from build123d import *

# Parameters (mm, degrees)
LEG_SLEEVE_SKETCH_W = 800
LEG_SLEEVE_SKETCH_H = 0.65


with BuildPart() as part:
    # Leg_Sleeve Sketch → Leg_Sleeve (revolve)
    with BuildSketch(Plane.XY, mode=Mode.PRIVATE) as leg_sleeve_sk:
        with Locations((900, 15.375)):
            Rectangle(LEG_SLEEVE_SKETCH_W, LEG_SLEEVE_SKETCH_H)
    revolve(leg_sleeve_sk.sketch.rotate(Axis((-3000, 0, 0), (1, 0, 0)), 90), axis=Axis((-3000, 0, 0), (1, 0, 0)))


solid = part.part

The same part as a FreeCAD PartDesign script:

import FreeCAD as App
import Part
import Sketcher


def add_polygon(sketch, points):
    """Adds a closed chain of lines whose ends are joined by coincident constraints."""
    first, n = sketch.GeometryCount, len(points)
    for a, b in zip(points, points[1:] + points[:1]):
        sketch.addGeometry(Part.LineSegment(App.Vector(*a, 0), App.Vector(*b, 0)), False)
    for i in range(n):
        sketch.addConstraint(Sketcher.Constraint("Coincident", first + i, 2, first + (i + 1) % n, 1))

doc = App.newDocument("Part")
body = doc.addObject("PartDesign::Body", "Body")

# Sketch on XY plane
sketch1 = body.newObject("Sketcher::SketchObject", "Sketch")
sketch1.AttachmentSupport = (doc.getObject("XY_Plane"), [""])
sketch1.MapMode = "FlatFace"
add_polygon(sketch1, [(500, 15.7), (500, 15.05), (1300, 15.05), (1300, 15.7)])  # lines 0-3
sketch1.addConstraint([
    Sketcher.Constraint("Vertical", 0),
    Sketcher.Constraint("Horizontal", 1),
    Sketcher.Constraint("Vertical", 2),
    Sketcher.Constraint("Horizontal", 3),
    Sketcher.Constraint("DistanceX", 1, 1, 1, 2, 800.0),
    Sketcher.Constraint("DistanceX", -1, 1, 0, 2, 500.0),
    Sketcher.Constraint("DistanceY", 0, 2, 0, 1, 0.65),
    Sketcher.Constraint("DistanceY", -1, 1, 2, 2, 15.7),
])
revolution = body.newObject("PartDesign::Revolution", "Revolution")
revolution.Profile = sketch1
revolution.ReferenceAxis = (sketch1, ["H_Axis"])
revolution.Angle = 360

doc.recompute()
